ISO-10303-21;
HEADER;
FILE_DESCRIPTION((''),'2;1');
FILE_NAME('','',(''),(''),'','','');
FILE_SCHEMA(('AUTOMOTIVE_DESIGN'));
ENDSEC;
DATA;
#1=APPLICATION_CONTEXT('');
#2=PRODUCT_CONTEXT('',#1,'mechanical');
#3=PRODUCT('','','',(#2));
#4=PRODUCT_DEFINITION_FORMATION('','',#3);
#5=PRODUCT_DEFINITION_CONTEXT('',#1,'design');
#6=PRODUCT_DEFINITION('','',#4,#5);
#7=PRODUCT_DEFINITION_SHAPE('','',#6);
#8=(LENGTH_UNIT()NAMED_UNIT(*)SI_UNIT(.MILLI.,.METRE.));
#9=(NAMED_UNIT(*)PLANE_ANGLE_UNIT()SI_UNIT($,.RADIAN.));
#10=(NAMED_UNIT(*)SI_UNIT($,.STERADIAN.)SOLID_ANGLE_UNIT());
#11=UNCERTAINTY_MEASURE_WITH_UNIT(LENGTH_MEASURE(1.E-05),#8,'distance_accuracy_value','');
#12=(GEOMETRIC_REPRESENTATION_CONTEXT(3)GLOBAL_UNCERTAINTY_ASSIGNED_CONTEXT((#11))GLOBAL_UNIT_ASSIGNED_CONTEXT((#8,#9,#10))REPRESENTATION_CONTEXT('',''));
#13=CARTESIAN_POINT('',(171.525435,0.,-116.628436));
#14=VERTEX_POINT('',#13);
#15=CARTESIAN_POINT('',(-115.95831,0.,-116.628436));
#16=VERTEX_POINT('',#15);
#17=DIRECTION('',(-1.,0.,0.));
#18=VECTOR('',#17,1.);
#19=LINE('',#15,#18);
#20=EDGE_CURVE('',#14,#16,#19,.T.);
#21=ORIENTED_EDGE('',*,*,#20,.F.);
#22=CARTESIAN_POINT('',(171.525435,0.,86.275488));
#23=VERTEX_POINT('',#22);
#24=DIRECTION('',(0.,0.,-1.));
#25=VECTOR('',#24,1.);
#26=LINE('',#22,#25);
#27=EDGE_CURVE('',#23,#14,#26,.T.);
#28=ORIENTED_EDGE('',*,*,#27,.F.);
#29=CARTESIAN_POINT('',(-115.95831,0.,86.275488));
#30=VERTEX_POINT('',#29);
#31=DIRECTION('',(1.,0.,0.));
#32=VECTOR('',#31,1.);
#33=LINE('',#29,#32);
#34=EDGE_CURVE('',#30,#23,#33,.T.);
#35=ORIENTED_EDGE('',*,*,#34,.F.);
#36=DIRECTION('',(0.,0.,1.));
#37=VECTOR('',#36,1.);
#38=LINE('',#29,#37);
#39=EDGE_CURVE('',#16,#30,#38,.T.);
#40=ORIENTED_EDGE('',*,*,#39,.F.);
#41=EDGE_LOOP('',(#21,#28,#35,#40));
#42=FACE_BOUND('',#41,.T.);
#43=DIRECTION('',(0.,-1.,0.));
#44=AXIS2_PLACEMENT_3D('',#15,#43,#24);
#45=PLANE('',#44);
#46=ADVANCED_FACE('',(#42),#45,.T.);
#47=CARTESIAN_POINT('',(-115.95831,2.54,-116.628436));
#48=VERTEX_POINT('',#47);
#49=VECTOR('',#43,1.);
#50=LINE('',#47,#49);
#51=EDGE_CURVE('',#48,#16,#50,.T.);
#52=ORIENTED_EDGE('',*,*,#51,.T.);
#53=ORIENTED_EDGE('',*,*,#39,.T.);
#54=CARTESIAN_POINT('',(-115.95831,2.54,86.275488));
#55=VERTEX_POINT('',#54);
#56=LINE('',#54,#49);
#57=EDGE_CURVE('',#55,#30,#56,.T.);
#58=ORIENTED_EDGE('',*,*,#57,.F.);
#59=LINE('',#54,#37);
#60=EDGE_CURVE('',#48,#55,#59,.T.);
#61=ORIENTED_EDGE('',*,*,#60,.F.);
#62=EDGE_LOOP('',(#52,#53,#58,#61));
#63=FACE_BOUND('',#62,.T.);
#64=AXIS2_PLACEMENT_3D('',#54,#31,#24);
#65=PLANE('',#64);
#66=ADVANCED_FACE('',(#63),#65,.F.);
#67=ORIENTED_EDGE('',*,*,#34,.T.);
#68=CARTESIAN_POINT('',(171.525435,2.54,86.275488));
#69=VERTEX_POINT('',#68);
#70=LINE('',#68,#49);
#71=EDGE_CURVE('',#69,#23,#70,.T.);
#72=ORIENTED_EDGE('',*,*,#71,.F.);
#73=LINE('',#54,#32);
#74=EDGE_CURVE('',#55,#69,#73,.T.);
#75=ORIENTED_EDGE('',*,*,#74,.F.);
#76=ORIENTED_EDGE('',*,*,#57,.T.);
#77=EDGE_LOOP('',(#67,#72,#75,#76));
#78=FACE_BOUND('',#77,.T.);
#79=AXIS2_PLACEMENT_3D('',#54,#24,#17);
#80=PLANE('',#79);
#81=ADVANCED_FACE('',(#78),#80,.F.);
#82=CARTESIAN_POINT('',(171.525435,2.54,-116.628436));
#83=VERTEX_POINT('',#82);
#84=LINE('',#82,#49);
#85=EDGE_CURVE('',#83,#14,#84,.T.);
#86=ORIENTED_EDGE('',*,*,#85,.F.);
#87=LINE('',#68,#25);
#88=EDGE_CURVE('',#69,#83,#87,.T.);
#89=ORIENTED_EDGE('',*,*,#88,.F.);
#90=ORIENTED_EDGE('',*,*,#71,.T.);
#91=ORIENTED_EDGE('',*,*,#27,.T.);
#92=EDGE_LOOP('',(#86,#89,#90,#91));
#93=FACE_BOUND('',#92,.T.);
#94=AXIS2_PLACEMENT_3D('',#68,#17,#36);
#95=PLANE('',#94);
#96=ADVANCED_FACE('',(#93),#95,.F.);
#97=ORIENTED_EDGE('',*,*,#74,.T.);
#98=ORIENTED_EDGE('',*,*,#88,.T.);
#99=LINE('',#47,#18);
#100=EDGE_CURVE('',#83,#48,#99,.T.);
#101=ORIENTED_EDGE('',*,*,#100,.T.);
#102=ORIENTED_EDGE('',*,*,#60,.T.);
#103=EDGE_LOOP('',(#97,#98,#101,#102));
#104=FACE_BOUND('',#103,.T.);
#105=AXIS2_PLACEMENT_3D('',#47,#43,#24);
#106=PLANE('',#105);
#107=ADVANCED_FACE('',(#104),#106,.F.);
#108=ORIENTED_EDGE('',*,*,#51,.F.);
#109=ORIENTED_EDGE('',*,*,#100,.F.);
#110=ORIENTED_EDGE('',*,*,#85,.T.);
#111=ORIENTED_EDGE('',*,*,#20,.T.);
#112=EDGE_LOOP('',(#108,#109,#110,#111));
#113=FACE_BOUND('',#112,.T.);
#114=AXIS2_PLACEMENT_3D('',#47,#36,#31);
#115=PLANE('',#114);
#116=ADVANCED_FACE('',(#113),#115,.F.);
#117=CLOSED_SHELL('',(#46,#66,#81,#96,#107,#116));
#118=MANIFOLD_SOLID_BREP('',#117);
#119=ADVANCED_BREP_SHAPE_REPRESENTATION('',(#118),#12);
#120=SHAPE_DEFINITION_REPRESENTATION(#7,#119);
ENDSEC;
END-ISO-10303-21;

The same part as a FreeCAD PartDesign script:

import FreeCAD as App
import Part
import Sketcher

V = App.Vector
Q = App.Units.Quantity


def add_polygon(sketch, points):
    """Adds a closed chain of lines whose ends are joined by coincident constraints."""
    first, n = sketch.GeometryCount, len(points)
    for a, b in zip(points, points[1:] + points[:1]):
        sketch.addGeometry(Part.LineSegment(App.Vector(*a, 0), App.Vector(*b, 0)), False)
    for i in range(n):
        sketch.addConstraint(Sketcher.Constraint("Coincident", first + i, 2, first + (i + 1) % n, 1))

doc = App.newDocument("Part")
body = doc.addObject("PartDesign::Body", "Body")

sketch1 = doc.addObject("Sketcher::SketchObject", "Sketch")
body.addObject(sketch1)
sketch1.AttachmentSupport = (doc.XZ_Plane, [""])
sketch1.MapMode = "FlatFace"
add_polygon(sketch1, [(-116, -117), (-116, 86), (172, 86), (172, -117)])
sketch1.addConstraint([
    Sketcher.Constraint("Vertical", 0),
    Sketcher.Constraint("Horizontal", 1),
    Sketcher.Constraint("Vertical", 2),
    Sketcher.Constraint("Horizontal", 3),
    Sketcher.Constraint("DistanceX", 1, 1, 1, 2, Q("287.483745 mm")),
    Sketcher.Constraint("DistanceY", 0, 1, 0, 2, Q("202.903924 mm")),
    Sketcher.Constraint("DistanceX", 0, 2, -1, 1, Q("115.95831 mm")),
    Sketcher.Constraint("DistanceY", -1, 1, 0, 2, Q("86.275488 mm")),
])
pad1 = doc.addObject("PartDesign::Pad", "Pad")
body.addObject(pad1)
pad1.Profile = sketch1
pad1.Length = Q("0.1 in")
pad1.Reversed = True

doc.recompute()
